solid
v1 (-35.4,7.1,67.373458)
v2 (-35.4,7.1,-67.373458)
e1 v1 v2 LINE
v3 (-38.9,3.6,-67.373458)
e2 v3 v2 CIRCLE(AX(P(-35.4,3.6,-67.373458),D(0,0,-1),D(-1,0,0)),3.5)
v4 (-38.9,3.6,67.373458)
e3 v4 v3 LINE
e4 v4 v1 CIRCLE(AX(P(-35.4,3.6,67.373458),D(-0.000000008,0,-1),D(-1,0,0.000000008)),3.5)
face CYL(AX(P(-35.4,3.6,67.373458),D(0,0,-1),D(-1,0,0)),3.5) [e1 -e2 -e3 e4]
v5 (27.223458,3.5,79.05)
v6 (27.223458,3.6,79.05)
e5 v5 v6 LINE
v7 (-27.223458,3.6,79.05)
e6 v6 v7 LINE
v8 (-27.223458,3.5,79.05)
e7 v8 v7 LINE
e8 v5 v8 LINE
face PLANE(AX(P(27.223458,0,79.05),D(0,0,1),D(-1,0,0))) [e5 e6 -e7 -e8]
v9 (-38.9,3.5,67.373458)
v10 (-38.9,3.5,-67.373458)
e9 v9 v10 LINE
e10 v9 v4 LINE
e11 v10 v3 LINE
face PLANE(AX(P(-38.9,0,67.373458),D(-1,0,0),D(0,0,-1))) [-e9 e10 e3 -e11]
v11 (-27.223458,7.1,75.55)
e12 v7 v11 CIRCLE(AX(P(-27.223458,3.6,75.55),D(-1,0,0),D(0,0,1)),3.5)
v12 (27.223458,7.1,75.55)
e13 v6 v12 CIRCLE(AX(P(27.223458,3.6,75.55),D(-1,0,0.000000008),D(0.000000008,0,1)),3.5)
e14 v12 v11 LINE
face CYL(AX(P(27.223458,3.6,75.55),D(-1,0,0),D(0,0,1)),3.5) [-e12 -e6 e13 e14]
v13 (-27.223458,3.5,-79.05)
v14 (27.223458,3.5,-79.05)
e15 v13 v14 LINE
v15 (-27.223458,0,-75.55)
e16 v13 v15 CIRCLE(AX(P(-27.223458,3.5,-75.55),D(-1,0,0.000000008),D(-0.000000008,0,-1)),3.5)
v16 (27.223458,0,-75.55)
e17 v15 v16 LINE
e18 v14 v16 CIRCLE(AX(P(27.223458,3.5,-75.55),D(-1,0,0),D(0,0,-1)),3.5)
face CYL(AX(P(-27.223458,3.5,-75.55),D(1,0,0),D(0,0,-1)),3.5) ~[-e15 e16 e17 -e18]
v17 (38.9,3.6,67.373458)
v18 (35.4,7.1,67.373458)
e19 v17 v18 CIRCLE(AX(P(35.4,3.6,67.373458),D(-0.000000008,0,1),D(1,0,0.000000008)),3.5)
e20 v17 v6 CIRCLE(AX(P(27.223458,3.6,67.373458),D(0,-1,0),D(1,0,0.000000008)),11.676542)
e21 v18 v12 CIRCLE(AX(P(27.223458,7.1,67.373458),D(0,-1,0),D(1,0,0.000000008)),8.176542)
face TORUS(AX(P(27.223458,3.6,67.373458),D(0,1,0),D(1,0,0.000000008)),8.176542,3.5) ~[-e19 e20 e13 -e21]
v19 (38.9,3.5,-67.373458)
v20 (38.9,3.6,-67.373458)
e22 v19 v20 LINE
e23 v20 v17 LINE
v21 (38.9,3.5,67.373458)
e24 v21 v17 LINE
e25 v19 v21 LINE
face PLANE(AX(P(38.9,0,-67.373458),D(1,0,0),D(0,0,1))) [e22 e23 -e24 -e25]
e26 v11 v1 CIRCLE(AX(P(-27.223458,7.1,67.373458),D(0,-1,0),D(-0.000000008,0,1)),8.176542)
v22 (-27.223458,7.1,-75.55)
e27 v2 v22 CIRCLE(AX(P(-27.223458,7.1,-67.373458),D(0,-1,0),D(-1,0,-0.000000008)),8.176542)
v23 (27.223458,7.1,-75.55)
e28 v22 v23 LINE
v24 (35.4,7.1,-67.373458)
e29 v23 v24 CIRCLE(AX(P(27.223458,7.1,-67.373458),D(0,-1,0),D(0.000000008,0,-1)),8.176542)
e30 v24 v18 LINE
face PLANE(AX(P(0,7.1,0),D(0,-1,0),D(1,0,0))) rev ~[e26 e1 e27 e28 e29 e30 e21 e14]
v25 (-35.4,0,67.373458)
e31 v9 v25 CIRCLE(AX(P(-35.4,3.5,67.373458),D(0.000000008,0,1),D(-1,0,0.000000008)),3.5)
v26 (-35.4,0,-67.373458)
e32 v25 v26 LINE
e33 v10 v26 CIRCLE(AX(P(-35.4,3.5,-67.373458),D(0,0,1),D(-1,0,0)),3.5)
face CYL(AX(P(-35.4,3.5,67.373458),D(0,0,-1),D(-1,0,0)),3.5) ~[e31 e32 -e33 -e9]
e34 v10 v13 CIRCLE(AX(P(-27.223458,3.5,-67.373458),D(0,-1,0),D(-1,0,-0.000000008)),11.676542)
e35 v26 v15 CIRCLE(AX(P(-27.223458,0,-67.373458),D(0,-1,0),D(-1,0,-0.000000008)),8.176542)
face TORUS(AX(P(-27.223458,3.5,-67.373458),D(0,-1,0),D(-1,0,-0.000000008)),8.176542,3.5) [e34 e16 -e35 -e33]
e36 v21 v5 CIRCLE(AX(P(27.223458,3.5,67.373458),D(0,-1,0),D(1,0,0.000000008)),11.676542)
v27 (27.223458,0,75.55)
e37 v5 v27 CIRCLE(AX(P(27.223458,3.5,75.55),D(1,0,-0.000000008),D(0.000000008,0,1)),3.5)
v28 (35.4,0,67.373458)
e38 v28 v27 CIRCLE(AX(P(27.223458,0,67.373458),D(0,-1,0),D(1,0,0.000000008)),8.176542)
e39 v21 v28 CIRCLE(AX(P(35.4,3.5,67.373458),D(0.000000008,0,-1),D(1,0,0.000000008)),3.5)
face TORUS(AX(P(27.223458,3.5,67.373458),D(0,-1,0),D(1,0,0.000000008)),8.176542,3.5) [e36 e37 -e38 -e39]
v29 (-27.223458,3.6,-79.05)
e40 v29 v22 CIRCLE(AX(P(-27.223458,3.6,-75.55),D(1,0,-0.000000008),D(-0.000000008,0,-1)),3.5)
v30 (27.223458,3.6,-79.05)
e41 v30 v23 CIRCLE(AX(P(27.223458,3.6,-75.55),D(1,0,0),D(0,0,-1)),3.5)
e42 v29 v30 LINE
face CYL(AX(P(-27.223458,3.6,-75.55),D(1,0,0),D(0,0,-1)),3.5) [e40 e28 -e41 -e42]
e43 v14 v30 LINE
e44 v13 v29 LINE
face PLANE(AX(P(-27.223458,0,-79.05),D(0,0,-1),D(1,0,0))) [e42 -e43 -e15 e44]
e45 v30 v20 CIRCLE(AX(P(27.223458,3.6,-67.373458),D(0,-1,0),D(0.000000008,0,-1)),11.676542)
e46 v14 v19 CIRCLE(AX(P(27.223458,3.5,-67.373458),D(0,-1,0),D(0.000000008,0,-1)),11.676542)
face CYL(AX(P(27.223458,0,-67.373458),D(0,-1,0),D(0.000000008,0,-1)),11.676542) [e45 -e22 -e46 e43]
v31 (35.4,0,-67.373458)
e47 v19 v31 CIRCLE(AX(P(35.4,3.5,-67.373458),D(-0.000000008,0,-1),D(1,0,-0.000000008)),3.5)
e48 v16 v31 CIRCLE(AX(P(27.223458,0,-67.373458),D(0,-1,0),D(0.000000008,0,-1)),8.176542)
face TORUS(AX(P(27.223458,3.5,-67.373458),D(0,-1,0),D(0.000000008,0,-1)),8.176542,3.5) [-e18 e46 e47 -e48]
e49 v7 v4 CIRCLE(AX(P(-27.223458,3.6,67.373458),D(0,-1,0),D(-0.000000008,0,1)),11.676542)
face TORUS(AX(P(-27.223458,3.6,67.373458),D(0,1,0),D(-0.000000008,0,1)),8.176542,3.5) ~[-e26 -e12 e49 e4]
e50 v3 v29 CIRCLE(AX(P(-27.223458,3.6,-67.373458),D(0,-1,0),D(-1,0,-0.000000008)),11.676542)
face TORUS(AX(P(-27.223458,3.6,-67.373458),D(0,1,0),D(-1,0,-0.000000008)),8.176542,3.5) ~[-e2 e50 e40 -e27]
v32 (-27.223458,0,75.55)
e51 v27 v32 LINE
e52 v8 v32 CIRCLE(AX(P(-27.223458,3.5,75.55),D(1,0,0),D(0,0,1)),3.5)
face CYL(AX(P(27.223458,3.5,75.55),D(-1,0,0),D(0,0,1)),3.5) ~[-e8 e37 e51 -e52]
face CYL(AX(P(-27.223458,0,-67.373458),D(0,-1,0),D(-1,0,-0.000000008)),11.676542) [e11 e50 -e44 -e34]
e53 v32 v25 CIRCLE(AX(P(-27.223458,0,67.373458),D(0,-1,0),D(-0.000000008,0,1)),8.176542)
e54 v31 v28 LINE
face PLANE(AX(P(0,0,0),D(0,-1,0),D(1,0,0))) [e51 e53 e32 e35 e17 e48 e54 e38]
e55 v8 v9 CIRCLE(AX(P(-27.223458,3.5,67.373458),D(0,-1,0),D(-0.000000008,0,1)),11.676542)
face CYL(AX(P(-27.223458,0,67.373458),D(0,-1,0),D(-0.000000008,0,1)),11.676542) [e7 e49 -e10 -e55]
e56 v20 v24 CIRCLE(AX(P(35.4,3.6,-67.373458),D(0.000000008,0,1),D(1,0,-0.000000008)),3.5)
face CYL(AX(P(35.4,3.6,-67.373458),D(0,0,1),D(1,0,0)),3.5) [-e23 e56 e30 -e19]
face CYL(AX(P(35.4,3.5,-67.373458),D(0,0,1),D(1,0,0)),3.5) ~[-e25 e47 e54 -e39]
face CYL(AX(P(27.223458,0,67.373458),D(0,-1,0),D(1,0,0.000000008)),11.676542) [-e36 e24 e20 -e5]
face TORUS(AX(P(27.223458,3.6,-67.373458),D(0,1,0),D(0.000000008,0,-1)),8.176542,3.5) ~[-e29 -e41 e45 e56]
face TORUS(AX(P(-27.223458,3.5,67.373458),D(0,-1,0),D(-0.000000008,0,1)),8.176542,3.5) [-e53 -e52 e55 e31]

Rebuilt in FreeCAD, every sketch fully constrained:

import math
import FreeCAD as App
import Part
import Sketcher
Q = App.Units.Quantity


def edges_at(feature, points):
    """Names of the edges that pass closest to the given points."""
    edges = feature.Shape.Edges
    near = lambda p: min(range(len(edges)), key=lambda i: edges[i].distToShape(Part.Vertex(*p))[0])
    return sorted({f"Edge{near(p) + 1}" for p in points})

doc = App.newDocument("Part")
body = doc.addObject("PartDesign::Body", "Body")

# Sketch on XZ plane
sketch1 = body.newObject("Sketcher::SketchObject", "Sketch")
sketch1.AttachmentSupport = (doc.getObject("XZ_Plane"), [""])
sketch1.MapMode = "FlatFace"
sketch1.addGeometry([
    Part.LineSegment(App.Vector(27.223458, 79.05, 0), App.Vector(-27.223458, 79.05, 0)),  # 0
    Part.ArcOfCircle(Part.Circle(App.Vector(-27.223458, 67.373458, 0), App.Vector(0, 0, 1), 11.676542), math.radians(90), math.radians(180)),  # 1
    Part.LineSegment(App.Vector(-38.9, 67.373458, 0), App.Vector(-38.9, -67.373458, 0)),  # 2
    Part.ArcOfCircle(Part.Circle(App.Vector(-27.223458, -67.373458, 0), App.Vector(0, 0, 1), 11.676542), math.radians(-180), math.radians(-90)),  # 3
    Part.LineSegment(App.Vector(-27.223458, -79.05, 0), App.Vector(27.223458, -79.05, 0)),  # 4
    Part.ArcOfCircle(Part.Circle(App.Vector(27.223458, -67.373458, 0), App.Vector(0, 0, 1), 11.676542), math.radians(-90), math.radians(0)),  # 5
    Part.LineSegment(App.Vector(38.9, -67.373458, 0), App.Vector(38.9, 67.373458, 0)),  # 6
    Part.ArcOfCircle(Part.Circle(App.Vector(27.223458, 67.373458, 0), App.Vector(0, 0, 1), 11.676542), math.radians(0), math.radians(90)),  # 7
], False)
sketch1.addConstraint([
    Sketcher.Constraint("Tangent", 0, 2, 1, 1),
    Sketcher.Constraint("Tangent", 1, 2, 2, 1),
    Sketcher.Constraint("Tangent", 2, 2, 3, 1),
    Sketcher.Constraint("Tangent", 3, 2, 4, 1),
    Sketcher.Constraint("Tangent", 4, 2, 5, 1),
    Sketcher.Constraint("Tangent", 5, 2, 6, 1),
    Sketcher.Constraint("Tangent", 6, 2, 7, 1),
    Sketcher.Constraint("Tangent", 7, 2, 0, 1),
    Sketcher.Constraint("Horizontal", 0),
    Sketcher.Constraint("Vertical", 2),
    Sketcher.Constraint("Horizontal", 4),
    Sketcher.Constraint("Vertical", 6),
    Sketcher.Constraint("Equal", 1, 3),
    Sketcher.Constraint("Equal", 3, 5),
    Sketcher.Constraint("Equal", 5, 7),
    Sketcher.Constraint("Symmetric", 1, 3, 5, 3, -1, 1),
    Sketcher.Constraint("DistanceX", 1, 2, -1, 1, Q("38.9 mm")),
    Sketcher.Constraint("DistanceY", -1, 1, 0, 2, Q("79.05 mm")),
    Sketcher.Constraint("Radius", 1, Q("11.676542 mm")),
])
pad1 = body.newObject("PartDesign::Pad", "Pad")
pad1.Profile = sketch1
pad1.Length = 7.1
pad1.Reversed = True
doc.recompute()

fillet = body.newObject("PartDesign::Fillet", "Fillet")
fillet.Base = (pad1, edges_at(pad1, [
    (35.48, 0, 75.63),
    (0, 0, 79.05),
    (-35.48, 0, 75.63),
    (-38.9, 0, 0),
    (-35.48, 0, -75.63),
    (0, 0, -79.05),
    (35.48, 0, -75.63),
    (38.9, 0, 0),
    (35.48, 7.1, 75.63),
    (0, 7.1, 79.05),
    (-35.48, 7.1, 75.63),
    (-38.9, 7.1, 0),
    (-35.48, 7.1, -75.63),
    (0, 7.1, -79.05),
    (35.48, 7.1, -75.63),
    (38.9, 7.1, 0),
]))
fillet.Radius = 3.5

doc.recompute()
